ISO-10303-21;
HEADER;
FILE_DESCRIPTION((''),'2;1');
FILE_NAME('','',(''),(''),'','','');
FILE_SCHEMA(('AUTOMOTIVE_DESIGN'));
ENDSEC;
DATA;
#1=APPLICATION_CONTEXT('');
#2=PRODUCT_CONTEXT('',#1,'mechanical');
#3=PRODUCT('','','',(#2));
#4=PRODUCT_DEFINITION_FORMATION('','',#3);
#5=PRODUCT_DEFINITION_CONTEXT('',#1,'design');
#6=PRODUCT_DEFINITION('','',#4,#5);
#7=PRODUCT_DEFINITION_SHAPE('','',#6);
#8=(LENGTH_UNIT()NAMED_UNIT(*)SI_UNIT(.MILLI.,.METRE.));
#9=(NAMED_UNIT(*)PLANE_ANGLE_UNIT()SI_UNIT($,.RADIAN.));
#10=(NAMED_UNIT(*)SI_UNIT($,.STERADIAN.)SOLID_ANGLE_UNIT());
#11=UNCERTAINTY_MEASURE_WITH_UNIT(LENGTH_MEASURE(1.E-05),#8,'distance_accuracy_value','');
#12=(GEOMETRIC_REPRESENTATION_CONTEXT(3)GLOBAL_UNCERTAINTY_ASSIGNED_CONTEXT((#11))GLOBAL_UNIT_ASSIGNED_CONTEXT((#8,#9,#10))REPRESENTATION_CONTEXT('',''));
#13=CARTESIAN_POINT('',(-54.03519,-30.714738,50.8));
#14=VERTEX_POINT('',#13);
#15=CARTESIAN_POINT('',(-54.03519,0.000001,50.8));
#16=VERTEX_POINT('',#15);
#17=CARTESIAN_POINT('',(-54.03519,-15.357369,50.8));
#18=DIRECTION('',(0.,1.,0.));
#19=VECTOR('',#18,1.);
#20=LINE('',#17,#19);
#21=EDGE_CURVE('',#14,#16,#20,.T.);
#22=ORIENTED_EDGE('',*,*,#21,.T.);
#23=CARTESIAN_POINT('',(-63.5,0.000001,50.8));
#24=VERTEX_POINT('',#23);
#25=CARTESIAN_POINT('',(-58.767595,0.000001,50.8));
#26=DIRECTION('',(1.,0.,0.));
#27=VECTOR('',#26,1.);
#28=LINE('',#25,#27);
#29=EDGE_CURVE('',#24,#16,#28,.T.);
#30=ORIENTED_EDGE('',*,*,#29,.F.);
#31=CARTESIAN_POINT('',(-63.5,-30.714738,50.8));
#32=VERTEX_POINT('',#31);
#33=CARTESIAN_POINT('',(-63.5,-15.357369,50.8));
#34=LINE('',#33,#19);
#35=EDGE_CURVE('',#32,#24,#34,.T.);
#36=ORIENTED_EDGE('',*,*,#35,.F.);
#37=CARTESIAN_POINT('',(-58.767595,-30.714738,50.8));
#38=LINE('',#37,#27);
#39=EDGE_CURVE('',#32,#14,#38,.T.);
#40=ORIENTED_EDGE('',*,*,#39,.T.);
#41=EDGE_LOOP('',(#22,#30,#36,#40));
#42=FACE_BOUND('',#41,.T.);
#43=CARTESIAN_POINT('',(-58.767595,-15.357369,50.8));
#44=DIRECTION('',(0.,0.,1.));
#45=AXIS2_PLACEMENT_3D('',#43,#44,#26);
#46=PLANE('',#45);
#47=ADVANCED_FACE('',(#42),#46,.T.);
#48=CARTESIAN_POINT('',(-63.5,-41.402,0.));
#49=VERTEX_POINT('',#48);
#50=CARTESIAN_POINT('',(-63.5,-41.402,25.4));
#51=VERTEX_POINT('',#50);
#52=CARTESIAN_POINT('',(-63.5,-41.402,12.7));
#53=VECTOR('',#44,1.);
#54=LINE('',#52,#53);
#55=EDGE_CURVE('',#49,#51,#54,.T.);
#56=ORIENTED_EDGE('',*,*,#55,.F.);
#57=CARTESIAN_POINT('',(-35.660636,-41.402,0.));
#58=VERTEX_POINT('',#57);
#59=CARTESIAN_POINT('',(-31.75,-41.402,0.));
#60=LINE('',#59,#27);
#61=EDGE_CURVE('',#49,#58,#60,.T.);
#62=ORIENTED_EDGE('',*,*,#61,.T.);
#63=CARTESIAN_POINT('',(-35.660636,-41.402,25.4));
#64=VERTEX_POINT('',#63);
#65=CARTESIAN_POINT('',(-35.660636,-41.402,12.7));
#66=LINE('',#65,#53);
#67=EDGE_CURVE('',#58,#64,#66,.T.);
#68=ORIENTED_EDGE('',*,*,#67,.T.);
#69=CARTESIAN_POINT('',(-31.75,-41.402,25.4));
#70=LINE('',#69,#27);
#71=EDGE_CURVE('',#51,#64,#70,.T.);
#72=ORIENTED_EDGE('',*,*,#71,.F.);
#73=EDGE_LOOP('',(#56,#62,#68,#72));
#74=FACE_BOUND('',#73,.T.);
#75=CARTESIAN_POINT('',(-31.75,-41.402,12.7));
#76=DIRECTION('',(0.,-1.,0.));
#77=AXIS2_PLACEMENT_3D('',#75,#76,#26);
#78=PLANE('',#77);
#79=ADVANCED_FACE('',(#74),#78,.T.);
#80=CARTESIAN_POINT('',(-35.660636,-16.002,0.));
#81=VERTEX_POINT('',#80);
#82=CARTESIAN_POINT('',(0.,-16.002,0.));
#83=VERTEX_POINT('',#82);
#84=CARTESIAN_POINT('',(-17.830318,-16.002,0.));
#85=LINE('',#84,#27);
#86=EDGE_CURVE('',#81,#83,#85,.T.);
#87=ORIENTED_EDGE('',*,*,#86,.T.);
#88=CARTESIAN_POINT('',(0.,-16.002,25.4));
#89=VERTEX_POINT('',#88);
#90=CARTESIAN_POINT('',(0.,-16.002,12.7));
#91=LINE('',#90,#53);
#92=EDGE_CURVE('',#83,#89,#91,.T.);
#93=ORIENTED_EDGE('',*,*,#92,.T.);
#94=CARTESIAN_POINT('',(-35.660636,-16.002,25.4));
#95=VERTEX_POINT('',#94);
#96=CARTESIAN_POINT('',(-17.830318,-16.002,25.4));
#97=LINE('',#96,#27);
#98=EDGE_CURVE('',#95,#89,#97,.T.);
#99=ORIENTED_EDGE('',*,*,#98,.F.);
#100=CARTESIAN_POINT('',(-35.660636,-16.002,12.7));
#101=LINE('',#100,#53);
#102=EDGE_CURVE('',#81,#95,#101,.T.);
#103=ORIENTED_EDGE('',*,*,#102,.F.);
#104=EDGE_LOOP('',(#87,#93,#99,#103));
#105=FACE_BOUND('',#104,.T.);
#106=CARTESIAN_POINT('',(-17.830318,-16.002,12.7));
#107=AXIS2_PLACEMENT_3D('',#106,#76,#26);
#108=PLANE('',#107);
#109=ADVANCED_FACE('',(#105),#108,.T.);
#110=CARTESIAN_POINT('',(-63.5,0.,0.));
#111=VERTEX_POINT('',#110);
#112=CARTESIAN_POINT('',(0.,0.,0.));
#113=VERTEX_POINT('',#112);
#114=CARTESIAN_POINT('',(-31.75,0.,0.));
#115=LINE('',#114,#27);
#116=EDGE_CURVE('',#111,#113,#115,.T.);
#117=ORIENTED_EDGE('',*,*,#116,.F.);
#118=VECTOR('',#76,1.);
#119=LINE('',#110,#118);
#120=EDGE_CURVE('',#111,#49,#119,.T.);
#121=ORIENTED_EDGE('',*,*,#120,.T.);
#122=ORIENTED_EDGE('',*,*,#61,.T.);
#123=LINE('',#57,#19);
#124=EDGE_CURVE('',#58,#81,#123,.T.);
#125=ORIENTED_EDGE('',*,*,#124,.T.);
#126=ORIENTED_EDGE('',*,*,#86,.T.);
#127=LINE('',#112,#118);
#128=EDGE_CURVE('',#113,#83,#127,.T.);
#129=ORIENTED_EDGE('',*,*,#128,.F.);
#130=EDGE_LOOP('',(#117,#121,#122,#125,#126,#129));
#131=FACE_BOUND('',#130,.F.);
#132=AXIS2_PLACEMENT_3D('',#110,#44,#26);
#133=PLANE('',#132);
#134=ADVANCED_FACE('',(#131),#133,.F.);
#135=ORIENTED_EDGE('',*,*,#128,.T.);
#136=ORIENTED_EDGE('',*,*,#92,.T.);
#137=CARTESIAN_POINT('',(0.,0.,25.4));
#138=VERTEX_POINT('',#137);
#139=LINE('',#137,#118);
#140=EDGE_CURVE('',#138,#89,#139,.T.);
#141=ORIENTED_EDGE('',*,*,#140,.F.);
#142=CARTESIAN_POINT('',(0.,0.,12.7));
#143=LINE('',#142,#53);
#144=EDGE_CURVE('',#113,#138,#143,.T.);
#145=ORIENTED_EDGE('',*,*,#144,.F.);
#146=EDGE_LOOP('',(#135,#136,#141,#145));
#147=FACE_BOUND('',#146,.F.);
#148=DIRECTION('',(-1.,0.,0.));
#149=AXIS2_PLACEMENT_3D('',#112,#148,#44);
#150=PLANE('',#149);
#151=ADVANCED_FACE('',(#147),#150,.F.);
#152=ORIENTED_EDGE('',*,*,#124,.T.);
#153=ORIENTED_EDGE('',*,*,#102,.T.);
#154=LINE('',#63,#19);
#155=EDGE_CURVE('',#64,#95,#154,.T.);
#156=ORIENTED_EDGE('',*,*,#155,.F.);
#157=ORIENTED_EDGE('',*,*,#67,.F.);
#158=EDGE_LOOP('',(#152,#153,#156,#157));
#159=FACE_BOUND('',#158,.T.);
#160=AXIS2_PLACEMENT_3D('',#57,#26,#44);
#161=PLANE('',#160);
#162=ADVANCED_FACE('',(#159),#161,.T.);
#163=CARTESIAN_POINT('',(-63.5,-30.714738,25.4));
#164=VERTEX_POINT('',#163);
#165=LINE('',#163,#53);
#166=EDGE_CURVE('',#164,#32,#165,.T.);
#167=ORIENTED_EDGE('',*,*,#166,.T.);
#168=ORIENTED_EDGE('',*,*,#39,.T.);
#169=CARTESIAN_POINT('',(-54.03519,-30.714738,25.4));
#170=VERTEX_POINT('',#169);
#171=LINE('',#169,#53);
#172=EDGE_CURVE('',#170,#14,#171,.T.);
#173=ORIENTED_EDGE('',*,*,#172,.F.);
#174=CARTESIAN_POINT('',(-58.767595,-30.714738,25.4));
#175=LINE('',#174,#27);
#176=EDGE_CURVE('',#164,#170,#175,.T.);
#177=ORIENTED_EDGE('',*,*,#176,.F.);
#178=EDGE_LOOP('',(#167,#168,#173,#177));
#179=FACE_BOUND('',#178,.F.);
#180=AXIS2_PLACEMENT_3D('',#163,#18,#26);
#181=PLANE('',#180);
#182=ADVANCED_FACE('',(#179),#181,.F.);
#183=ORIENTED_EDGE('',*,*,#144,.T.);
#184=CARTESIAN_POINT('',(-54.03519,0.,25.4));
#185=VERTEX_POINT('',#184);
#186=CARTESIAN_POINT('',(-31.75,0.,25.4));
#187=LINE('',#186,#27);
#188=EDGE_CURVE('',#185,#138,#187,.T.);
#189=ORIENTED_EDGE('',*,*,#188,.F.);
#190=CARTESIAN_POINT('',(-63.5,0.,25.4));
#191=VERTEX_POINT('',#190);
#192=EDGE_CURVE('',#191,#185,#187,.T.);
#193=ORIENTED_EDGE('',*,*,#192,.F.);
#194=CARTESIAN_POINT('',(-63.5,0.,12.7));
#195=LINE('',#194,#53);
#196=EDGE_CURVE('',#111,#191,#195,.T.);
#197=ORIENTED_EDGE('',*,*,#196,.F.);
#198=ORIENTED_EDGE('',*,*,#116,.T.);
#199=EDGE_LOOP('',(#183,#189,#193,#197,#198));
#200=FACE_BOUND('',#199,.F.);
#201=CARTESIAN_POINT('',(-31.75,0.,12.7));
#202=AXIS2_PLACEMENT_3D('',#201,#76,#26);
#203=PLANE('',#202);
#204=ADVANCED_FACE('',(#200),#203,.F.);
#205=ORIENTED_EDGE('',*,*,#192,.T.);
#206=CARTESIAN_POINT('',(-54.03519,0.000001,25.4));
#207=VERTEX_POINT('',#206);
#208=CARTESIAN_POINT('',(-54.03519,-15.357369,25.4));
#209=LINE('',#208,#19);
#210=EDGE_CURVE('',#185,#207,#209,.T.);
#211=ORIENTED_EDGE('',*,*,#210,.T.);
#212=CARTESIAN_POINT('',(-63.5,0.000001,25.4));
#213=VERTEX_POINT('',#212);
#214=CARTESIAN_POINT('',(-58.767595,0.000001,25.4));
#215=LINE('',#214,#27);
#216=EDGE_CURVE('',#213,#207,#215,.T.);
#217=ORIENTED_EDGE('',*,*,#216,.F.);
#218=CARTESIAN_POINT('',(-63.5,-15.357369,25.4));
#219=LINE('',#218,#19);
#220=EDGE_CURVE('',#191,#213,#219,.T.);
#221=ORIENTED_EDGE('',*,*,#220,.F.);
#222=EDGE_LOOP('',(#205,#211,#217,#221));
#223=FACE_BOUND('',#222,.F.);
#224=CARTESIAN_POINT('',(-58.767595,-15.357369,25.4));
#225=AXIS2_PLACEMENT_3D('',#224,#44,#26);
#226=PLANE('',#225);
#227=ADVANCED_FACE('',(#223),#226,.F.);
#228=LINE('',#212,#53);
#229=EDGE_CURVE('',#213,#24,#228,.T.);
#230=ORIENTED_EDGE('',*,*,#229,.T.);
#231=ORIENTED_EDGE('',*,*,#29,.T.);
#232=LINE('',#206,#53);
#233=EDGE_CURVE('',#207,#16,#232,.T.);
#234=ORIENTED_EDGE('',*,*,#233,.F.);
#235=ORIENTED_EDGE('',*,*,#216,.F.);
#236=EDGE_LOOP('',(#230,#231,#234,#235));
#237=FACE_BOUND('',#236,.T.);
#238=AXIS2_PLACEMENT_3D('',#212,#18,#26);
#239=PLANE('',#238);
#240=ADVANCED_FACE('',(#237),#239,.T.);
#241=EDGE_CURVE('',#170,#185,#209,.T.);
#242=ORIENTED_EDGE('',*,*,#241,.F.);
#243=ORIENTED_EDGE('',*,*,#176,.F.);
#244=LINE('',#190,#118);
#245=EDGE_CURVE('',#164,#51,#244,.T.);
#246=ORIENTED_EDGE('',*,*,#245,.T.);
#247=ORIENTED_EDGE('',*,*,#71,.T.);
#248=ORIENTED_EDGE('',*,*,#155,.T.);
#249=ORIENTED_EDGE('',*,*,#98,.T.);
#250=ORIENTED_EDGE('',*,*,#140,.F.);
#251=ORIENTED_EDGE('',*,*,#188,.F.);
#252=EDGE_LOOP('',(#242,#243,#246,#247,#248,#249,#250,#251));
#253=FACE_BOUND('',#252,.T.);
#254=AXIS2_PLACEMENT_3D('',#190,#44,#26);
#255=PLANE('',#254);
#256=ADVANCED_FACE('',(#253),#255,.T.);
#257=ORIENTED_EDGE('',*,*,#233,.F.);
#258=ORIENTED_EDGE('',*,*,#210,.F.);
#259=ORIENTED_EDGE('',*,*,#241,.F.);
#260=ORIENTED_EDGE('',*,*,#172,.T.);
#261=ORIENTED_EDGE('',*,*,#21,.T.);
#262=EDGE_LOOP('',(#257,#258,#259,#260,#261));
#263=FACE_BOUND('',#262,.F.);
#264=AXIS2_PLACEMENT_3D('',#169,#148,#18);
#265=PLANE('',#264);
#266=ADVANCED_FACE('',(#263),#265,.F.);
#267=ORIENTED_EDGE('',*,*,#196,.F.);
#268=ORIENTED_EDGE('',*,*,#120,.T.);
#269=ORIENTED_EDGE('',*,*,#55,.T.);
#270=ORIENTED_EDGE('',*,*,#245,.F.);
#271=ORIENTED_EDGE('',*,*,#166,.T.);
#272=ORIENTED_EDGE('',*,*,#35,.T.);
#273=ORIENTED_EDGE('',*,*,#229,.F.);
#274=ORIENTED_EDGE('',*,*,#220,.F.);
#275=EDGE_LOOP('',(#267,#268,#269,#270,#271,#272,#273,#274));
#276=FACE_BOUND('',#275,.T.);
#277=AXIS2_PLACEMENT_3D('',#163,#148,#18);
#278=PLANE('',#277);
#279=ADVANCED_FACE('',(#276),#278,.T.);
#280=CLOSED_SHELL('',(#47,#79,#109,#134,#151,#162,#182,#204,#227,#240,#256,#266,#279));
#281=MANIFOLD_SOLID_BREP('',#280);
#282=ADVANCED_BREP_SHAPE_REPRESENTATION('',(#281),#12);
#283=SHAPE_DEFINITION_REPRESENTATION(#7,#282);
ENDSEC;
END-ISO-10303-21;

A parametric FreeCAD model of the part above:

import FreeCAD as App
import Part
import Sketcher
from FreeCAD import Vector
Q = App.Units.Quantity

doc = App.newDocument("Part")
params = doc.addObject("Spreadsheet::Sheet", "Params")
for row, (alias, value) in enumerate([
    ("sketch1_height", "1 in"),
    ("sketch1_width", "2.5 in"),
    ("pad1_length", "1.63 in"),
    ("sketch2_height", "1 in"),
    ("pocket1_length", "1 in"),
    ("pad2_length", "1 in"),
], start=1):
    params.set(f"A{row}", alias)
    params.set(f"B{row}", "=" + value)
    params.setAlias(f"B{row}", alias)

body = doc.addObject("PartDesign::Body", "Body")

# Sketch on XZ plane
sketch1 = doc.addObject("Sketcher::SketchObject", "Sketch")
body.addObject(sketch1)
sketch1.AttachmentSupport = (doc.XZ_Plane, [""])
sketch1.MapMode = "FlatFace"
sketch1.addGeometry(Part.LineSegment(Vector(-64, 25, 0), Vector(-64, 0, 0)), False)
sketch1.addGeometry(Part.LineSegment(Vector(-64, 0, 0), Vector(0, 0, 0)), False)
sketch1.addGeometry(Part.LineSegment(Vector(0, 0, 0), Vector(0, 25, 0)), False)
sketch1.addGeometry(Part.LineSegment(Vector(0, 25, 0), Vector(-64, 25, 0)), False)
sketch1.addConstraint(Sketcher.Constraint("Coincident", 0, 2, 1, 1))
sketch1.addConstraint(Sketcher.Constraint("Coincident", 1, 2, 2, 1))
sketch1.addConstraint(Sketcher.Constraint("Coincident", 2, 2, 3, 1))
sketch1.addConstraint(Sketcher.Constraint("Coincident", 3, 2, 0, 1))
sketch1.addConstraint(Sketcher.Constraint("Vertical", 0))
sketch1.addConstraint(Sketcher.Constraint("Horizontal", 1))
sketch1.addConstraint(Sketcher.Constraint("Vertical", 2))
sketch1.addConstraint(Sketcher.Constraint("Horizontal", 3))
sketch1.addConstraint(Sketcher.Constraint("Coincident", 1, 2, -1, 1))
sketch1.addConstraint(Sketcher.Constraint("DistanceY", 0, 2, 0, 1, Q("1 in")))
sketch1.addConstraint(Sketcher.Constraint("DistanceX", 1, 1, 1, 2, Q("2.5 in")))
sketch1.setExpression("Constraints[9]", "Params.sketch1_height")
sketch1.setExpression("Constraints[10]", "Params.sketch1_width")
pad1 = doc.addObject("PartDesign::Pad", "Pad")
body.addObject(pad1)
pad1.Profile = sketch1
pad1.setExpression("Length", "Params.pad1_length")

# Sketch on XZ plane
sketch2 = doc.addObject("Sketcher::SketchObject", "Sketch001")
body.addObject(sketch2)
sketch2.AttachmentSupport = (doc.XZ_Plane, [""])
sketch2.MapMode = "FlatFace"
sketch2.AttachmentOffset = App.Placement(Vector(0, 0, 1.63 * 25.4), App.Rotation())
sketch2.addGeometry(Part.LineSegment(Vector(-36, 25, 0), Vector(-36, 0, 0)), False)
sketch2.addGeometry(Part.LineSegment(Vector(-36, 0, 0), Vector(0, 0, 0)), False)
sketch2.addGeometry(Part.LineSegment(Vector(0, 0, 0), Vector(0, 25, 0)), False)
sketch2.addGeometry(Part.LineSegment(Vector(0, 25, 0), Vector(-36, 25, 0)), False)
sketch2.addConstraint(Sketcher.Constraint("Coincident", 0, 2, 1, 1))
sketch2.addConstraint(Sketcher.Constraint("Coincident", 1, 2, 2, 1))
sketch2.addConstraint(Sketcher.Constraint("Coincident", 2, 2, 3, 1))
sketch2.addConstraint(Sketcher.Constraint("Coincident", 3, 2, 0, 1))
sketch2.addConstraint(Sketcher.Constraint("Vertical", 0))
sketch2.addConstraint(Sketcher.Constraint("Horizontal", 1))
sketch2.addConstraint(Sketcher.Constraint("Vertical", 2))
sketch2.addConstraint(Sketcher.Constraint("Horizontal", 3))
sketch2.addConstraint(Sketcher.Constraint("Coincident", 1, 2, -1, 1))
sketch2.addConstraint(Sketcher.Constraint("DistanceY", 0, 2, 0, 1, Q("1 in")))
sketch2.addConstraint(Sketcher.Constraint("DistanceX", 1, 1, 1, 2, Q("35.660636 mm")))
sketch2.setExpression("Constraints[9]", "Params.sketch2_height")
pocket1 = doc.addObject("PartDesign::Pocket", "Pocket")
body.addObject(pocket1)
pocket1.Profile = sketch2
pocket1.setExpression("Length", "Params.pocket1_length")

# Sketch on XY plane
sketch3 = doc.addObject("Sketcher::SketchObject", "Sketch002")
body.addObject(sketch3)
sketch3.AttachmentSupport = (doc.XY_Plane, [""])
sketch3.MapMode = "FlatFace"
sketch3.AttachmentOffset = App.Placement(Vector(0, 0, 1 * 25.4), App.Rotation())
sketch3.addGeometry(Part.LineSegment(Vector(-64, 0, 0), Vector(-64, -31, 0)), False)
sketch3.addGeometry(Part.LineSegment(Vector(-64, -31, 0), Vector(-54, -31, 0)), False)
sketch3.addGeometry(Part.LineSegment(Vector(-54, -31, 0), Vector(-54, 0, 0)), False)
sketch3.addGeometry(Part.LineSegment(Vector(-54, 0, 0), Vector(-64, 0, 0)), False)
sketch3.addConstraint(Sketcher.Constraint("Coincident", 0, 2, 1, 1))
sketch3.addConstraint(Sketcher.Constraint("Coincident", 1, 2, 2, 1))
sketch3.addConstraint(Sketcher.Constraint("Coincident", 2, 2, 3, 1))
sketch3.addConstraint(Sketcher.Constraint("Coincident", 3, 2, 0, 1))
sketch3.addConstraint(Sketcher.Constraint("Vertical", 0))
sketch3.addConstraint(Sketcher.Constraint("Horizontal", 1))
sketch3.addConstraint(Sketcher.Constraint("Vertical", 2))
sketch3.addConstraint(Sketcher.Constraint("Horizontal", 3))
sketch3.addConstraint(Sketcher.Constraint("PointOnObject", 2, 2, -1))
sketch3.addConstraint(Sketcher.Constraint("DistanceX", 0, 2, -1, 1, Q("2.5 in")))
sketch3.addConstraint(Sketcher.Constraint("DistanceX", 1, 1, 1, 2, Q("9.46481 mm")))
sketch3.addConstraint(Sketcher.Constraint("DistanceY", 0, 2, 0, 1, Q("30.714739 mm")))
pad2 = doc.addObject("PartDesign::Pad", "Pad001")
body.addObject(pad2)
pad2.Profile = sketch3
pad2.setExpression("Length", "Params.pad2_length")

doc.recompute()
